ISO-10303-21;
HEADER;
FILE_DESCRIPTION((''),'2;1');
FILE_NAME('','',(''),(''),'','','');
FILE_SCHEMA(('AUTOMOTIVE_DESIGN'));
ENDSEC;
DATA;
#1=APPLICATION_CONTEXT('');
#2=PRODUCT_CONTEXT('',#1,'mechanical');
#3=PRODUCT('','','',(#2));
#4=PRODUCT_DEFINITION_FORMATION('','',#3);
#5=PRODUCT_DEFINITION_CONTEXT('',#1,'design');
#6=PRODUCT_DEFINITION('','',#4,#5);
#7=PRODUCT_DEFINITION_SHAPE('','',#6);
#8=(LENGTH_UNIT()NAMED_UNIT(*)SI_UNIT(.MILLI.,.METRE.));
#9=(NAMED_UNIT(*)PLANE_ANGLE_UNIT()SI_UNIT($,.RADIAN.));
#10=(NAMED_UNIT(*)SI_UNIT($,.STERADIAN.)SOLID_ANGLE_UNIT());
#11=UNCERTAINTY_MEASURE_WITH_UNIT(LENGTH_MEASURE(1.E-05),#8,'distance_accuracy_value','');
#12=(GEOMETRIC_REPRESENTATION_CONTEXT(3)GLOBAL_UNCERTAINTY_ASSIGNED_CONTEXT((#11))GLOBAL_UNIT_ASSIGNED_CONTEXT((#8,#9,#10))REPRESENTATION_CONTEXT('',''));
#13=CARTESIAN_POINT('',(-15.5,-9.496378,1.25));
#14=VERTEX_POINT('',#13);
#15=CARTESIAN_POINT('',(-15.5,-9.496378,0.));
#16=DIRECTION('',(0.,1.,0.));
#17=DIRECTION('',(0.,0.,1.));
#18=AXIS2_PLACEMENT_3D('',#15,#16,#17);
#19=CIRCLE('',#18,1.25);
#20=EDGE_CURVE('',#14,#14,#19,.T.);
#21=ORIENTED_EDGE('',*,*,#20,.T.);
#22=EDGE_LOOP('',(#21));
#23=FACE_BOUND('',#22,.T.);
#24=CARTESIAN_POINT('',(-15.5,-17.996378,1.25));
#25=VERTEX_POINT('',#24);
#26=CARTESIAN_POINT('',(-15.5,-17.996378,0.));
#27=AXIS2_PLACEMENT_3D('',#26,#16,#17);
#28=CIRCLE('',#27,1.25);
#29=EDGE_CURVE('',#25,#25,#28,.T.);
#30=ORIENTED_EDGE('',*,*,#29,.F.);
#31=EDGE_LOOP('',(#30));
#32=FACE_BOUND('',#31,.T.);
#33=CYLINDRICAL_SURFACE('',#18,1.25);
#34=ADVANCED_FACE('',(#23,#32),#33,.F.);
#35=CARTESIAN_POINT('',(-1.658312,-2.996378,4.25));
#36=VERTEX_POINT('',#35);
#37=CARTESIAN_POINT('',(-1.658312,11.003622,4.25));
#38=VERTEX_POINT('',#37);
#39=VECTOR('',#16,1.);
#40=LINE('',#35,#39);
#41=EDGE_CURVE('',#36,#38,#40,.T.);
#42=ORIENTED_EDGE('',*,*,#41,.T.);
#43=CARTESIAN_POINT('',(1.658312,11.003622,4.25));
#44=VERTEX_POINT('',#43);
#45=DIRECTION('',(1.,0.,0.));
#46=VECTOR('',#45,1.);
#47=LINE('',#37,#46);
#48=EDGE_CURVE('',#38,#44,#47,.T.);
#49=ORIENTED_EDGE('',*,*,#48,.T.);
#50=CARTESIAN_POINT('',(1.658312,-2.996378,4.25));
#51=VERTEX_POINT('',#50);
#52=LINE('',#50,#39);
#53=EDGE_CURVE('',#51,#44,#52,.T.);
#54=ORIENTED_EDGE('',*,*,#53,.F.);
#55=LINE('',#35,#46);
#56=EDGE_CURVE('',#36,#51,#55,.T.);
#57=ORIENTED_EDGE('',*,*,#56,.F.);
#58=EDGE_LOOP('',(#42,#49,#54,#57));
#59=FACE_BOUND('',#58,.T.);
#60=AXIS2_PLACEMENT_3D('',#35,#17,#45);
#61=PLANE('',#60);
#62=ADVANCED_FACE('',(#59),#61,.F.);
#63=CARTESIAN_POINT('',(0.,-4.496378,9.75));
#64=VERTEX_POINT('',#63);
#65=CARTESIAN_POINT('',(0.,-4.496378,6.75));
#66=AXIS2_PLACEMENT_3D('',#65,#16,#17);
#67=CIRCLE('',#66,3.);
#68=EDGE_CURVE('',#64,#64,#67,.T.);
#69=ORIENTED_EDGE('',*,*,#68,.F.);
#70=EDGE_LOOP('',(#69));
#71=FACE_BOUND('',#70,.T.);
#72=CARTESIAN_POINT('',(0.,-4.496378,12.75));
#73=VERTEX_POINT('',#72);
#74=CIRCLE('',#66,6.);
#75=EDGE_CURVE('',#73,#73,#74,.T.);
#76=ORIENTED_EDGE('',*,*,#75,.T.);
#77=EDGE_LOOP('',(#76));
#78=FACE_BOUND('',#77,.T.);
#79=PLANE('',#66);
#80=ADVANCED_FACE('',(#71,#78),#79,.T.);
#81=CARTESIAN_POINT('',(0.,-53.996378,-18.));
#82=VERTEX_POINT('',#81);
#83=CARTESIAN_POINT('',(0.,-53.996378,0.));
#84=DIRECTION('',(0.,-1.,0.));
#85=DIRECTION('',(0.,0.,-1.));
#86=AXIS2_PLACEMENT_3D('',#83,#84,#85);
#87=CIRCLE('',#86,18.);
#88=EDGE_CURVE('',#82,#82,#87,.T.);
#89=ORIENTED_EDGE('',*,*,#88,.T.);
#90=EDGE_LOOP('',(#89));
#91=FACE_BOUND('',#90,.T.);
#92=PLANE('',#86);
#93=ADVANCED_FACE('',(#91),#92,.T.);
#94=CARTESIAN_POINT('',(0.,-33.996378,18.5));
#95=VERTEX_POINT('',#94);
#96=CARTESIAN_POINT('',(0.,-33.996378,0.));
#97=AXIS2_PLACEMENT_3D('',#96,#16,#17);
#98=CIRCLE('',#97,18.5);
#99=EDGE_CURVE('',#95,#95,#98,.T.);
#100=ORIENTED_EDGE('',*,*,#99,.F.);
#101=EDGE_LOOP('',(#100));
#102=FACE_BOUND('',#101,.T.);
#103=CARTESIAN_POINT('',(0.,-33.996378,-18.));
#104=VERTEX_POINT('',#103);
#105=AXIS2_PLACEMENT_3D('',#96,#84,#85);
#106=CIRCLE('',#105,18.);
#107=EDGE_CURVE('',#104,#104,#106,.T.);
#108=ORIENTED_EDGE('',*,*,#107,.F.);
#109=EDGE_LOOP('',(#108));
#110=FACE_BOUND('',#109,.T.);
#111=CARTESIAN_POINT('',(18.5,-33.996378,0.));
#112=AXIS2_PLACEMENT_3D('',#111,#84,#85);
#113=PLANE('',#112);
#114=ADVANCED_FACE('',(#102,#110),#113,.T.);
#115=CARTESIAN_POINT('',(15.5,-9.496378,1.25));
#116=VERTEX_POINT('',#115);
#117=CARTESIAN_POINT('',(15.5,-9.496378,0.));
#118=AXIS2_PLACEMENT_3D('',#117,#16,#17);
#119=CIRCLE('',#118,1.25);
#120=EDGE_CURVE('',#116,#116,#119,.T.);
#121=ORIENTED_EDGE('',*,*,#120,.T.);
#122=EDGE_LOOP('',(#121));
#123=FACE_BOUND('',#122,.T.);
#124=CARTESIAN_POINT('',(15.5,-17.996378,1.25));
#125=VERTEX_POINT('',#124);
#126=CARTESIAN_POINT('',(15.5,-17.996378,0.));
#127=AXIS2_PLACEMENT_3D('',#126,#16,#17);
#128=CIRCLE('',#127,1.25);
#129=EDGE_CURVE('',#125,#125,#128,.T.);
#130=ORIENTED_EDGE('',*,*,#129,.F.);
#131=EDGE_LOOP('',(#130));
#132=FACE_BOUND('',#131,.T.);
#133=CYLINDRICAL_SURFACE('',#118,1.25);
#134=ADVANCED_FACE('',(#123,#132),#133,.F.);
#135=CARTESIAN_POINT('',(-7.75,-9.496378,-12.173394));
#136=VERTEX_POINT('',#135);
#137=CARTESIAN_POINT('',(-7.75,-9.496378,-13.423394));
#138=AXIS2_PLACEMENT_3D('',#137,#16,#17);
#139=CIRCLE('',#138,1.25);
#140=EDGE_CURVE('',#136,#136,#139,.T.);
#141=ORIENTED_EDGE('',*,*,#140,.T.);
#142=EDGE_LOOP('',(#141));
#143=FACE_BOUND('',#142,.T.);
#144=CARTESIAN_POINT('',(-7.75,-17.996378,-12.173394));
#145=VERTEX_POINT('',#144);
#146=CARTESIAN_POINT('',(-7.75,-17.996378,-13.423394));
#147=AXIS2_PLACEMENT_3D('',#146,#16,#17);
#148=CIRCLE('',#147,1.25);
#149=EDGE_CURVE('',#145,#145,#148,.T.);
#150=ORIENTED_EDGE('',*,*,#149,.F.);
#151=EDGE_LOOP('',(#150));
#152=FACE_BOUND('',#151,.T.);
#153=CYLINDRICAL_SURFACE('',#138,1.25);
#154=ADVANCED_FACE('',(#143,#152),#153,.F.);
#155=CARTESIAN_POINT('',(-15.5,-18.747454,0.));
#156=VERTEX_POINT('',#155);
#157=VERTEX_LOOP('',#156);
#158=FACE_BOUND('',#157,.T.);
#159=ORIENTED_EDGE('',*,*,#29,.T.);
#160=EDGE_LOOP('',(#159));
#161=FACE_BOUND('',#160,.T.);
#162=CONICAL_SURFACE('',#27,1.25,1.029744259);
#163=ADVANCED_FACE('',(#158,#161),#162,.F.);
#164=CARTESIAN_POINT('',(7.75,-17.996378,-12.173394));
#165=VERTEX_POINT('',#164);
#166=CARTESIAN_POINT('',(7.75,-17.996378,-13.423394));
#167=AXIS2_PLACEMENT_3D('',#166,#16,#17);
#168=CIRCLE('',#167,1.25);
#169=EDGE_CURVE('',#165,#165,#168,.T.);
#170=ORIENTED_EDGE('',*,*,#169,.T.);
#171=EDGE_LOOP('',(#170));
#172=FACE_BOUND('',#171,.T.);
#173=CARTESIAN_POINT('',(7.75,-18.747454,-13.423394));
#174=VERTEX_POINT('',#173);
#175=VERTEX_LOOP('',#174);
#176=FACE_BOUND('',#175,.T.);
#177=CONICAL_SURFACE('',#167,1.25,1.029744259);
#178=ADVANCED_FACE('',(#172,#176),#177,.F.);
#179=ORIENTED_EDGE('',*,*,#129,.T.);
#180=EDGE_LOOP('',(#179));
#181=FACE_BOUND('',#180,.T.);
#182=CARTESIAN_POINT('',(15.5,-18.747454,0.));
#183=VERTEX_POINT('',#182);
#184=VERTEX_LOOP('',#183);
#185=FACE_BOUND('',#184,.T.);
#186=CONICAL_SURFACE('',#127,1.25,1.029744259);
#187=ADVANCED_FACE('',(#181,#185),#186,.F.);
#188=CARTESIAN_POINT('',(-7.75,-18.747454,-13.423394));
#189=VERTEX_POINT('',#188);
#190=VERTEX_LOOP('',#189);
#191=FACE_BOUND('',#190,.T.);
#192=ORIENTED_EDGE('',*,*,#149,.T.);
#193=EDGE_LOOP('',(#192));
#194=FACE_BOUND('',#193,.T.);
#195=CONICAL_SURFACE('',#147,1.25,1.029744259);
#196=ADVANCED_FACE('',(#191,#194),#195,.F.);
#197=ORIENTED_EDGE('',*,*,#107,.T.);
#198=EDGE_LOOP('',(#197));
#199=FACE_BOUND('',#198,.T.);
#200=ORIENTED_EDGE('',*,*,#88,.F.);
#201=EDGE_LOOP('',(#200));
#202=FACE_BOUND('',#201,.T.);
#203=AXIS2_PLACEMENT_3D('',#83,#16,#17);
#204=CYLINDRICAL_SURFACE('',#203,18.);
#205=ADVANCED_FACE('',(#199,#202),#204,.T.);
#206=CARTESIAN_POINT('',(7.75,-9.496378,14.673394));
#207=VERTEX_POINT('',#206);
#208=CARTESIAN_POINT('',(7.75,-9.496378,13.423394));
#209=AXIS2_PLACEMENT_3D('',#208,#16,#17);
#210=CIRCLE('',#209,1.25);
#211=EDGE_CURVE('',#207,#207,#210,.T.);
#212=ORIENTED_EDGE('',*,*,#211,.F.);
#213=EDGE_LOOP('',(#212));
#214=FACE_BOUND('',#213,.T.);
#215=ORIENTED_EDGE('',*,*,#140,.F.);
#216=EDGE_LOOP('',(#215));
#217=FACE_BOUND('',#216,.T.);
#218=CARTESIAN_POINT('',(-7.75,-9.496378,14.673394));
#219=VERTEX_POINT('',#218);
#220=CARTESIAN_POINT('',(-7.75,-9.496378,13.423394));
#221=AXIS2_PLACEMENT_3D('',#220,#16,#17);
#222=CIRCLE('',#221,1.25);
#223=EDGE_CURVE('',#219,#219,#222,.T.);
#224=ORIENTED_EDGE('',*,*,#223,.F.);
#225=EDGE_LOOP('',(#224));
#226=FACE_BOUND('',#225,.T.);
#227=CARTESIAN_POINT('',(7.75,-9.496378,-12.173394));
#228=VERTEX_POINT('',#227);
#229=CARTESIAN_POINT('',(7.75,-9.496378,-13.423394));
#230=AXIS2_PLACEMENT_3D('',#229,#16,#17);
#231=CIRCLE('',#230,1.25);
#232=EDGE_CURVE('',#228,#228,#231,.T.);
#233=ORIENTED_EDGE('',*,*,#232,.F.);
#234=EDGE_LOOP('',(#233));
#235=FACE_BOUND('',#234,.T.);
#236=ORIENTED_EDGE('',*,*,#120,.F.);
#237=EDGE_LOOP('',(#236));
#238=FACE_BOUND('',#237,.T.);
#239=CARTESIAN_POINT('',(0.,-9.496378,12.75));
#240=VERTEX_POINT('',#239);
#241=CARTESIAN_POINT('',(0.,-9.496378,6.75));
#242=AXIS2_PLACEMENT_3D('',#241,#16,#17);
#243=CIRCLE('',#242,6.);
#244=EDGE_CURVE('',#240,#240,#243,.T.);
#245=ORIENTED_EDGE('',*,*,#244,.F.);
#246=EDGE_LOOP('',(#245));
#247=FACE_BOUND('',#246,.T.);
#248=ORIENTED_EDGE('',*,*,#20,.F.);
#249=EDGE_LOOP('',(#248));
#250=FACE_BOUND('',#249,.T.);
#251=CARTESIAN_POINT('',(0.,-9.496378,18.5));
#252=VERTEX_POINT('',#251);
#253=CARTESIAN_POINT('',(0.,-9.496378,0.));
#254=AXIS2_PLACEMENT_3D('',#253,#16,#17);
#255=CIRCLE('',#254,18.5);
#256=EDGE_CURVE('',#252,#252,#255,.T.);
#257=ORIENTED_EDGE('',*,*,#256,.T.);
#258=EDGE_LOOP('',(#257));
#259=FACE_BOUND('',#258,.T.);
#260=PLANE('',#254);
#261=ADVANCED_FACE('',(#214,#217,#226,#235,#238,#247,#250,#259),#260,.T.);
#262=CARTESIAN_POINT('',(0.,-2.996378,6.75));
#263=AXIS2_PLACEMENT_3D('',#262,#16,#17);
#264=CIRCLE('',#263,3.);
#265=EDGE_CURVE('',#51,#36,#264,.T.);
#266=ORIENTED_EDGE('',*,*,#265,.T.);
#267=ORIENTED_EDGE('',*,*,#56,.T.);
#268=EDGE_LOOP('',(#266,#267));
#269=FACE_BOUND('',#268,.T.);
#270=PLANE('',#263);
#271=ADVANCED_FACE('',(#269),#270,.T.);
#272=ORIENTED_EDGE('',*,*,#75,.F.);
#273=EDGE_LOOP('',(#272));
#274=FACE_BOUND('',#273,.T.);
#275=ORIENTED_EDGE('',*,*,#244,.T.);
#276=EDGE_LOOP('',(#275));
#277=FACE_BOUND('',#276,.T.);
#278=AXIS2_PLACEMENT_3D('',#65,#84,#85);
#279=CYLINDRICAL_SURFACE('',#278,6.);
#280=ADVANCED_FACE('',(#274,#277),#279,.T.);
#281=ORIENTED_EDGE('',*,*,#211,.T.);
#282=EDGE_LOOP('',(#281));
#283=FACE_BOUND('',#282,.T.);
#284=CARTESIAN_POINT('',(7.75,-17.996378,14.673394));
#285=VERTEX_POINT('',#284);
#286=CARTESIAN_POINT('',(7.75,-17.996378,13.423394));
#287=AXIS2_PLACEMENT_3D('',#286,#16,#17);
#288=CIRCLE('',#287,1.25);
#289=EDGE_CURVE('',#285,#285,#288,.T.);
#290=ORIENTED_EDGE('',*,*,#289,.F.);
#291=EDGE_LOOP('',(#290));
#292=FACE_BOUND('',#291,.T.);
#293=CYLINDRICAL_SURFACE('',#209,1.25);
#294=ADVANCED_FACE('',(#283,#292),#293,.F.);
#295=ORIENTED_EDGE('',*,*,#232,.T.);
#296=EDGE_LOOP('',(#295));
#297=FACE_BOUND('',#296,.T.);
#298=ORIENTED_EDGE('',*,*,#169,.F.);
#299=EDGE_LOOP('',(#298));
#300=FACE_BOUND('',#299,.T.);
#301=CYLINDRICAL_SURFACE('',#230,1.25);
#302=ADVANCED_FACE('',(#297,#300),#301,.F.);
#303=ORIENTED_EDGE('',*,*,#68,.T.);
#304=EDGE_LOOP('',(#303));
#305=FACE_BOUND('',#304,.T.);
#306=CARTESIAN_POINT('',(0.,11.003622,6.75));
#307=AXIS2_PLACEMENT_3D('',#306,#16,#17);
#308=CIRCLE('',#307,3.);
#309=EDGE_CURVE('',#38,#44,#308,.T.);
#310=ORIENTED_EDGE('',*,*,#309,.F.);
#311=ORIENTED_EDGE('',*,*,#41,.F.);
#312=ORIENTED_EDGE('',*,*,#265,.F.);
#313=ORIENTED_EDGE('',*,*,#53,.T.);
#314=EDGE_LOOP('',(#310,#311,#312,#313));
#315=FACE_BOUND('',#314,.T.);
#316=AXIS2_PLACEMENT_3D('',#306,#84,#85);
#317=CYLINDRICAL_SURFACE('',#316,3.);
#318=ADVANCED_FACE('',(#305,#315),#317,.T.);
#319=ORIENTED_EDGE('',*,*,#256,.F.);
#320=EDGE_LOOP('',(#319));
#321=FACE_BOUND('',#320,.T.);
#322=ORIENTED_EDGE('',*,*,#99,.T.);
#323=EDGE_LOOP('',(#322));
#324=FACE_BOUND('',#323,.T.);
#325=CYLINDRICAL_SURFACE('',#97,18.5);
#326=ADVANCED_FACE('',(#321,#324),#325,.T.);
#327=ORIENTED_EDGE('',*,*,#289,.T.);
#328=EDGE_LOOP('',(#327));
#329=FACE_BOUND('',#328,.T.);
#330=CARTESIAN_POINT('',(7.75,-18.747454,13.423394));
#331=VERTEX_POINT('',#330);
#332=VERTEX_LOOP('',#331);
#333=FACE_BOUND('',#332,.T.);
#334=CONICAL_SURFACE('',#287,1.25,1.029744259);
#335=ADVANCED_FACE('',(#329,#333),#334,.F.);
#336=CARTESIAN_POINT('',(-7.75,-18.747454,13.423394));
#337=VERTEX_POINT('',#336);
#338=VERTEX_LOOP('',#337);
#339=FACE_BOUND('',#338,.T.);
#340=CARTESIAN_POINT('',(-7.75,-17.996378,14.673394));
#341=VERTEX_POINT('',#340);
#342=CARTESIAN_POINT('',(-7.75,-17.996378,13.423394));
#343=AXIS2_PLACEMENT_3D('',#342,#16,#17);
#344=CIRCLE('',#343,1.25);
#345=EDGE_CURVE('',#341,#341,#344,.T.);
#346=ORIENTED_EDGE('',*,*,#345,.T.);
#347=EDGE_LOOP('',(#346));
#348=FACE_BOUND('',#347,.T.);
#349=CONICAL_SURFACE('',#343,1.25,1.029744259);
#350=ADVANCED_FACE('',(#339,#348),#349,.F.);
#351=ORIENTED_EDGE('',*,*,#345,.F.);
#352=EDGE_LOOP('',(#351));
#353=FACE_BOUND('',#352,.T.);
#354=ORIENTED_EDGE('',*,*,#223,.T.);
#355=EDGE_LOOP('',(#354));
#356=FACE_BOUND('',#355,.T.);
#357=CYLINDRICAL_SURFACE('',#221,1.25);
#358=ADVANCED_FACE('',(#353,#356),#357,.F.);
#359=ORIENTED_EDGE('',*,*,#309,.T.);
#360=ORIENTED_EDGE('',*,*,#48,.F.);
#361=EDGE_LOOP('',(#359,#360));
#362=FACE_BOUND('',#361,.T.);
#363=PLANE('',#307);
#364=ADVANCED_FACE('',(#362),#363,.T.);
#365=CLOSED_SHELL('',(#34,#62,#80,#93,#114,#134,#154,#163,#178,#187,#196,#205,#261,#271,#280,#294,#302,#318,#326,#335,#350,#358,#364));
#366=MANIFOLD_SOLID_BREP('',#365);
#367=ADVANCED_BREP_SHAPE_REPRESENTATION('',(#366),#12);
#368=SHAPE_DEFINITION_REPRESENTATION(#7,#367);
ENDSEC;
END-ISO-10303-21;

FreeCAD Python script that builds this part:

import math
import FreeCAD as App
import Part
import Sketcher
Q = App.Units.Quantity

doc = App.newDocument("Part")
body = doc.addObject("PartDesign::Body", "Body")

# Sketch on XY plane
sketch1 = body.newObject("Sketcher::SketchObject", "Sketch")
sketch1.AttachmentSupport = (doc.getObject("XY_Plane"), [""])
sketch1.MapMode = "FlatFace"
sketch1.addGeometry([
    Part.LineSegment(App.Vector(18, -9, 0), App.Vector(18, -34, 0)),
    Part.LineSegment(App.Vector(18, -34, 0), App.Vector(0, -34, 0)),
    Part.LineSegment(App.Vector(0, -34, 0), App.Vector(0, -9, 0)),
    Part.LineSegment(App.Vector(0, -9, 0), App.Vector(18, -9, 0)),
], False)
sketch1.addConstraint([
    Sketcher.Constraint("Coincident", 0, 2, 1, 1),
    Sketcher.Constraint("Coincident", 1, 2, 2, 1),
    Sketcher.Constraint("Coincident", 2, 2, 3, 1),
    Sketcher.Constraint("Coincident", 3, 2, 0, 1),
    Sketcher.Constraint("Vertical", 0),
    Sketcher.Constraint("Horizontal", 1),
    Sketcher.Constraint("Vertical", 2),
    Sketcher.Constraint("Horizontal", 3),
    Sketcher.Constraint("PointOnObject", 1, 2, -2),
    Sketcher.Constraint("DistanceX", 1, 2, 1, 1, Q("18.5 mm")),
    Sketcher.Constraint("DistanceY", 0, 2, 0, 1, Q("24.5 mm")),
    Sketcher.Constraint("DistanceY", 0, 2, -1, 1, Q("33.996378 mm")),
])
revolution = body.newObject("PartDesign::Revolution", "Revolution")
revolution.Profile = sketch1
revolution.ReferenceAxis = (sketch1, ["V_Axis"])
revolution.Angle = 360

# Sketch on XZ plane
sketch2 = body.newObject("Sketcher::SketchObject", "Sketch001")
sketch2.AttachmentSupport = (doc.getObject("XZ_Plane"), [""])
sketch2.MapMode = "FlatFace"
sketch2.AttachmentOffset = App.Placement(App.Vector(0, 0, 9.496378), App.Rotation())
sketch2.addGeometry(Part.Circle(App.Vector(0, 7, 0), App.Vector(0, 0, 1), 6), False)
sketch2.addConstraint([
    Sketcher.Constraint("PointOnObject", 0, 3, -2),
    Sketcher.Constraint("Diameter", 0, Q("12 mm")),
    Sketcher.Constraint("DistanceY", -1, 1, 0, 3, Q("6.75 mm")),
])
pad1 = body.newObject("PartDesign::Pad", "Pad")
pad1.Profile = sketch2
pad1.Length = 5
pad1.Reversed = True

# Sketch on XZ plane
sketch3 = body.newObject("Sketcher::SketchObject", "Sketch002")
sketch3.AttachmentSupport = (doc.getObject("XZ_Plane"), [""])
sketch3.MapMode = "FlatFace"
sketch3.AttachmentOffset = App.Placement(App.Vector(0, 0, 4.496378), App.Rotation())
sketch3.addGeometry(Part.Circle(App.Vector(0, 6.8, 0), App.Vector(0, 0, 1), 3), False)
sketch3.addConstraint([
    Sketcher.Constraint("PointOnObject", 0, 3, -2),
    Sketcher.Constraint("Diameter", 0, Q("6 mm")),
    Sketcher.Constraint("DistanceY", -1, 1, 0, 3, Q("6.75 mm")),
])
pad2 = body.newObject("PartDesign::Pad", "Pad001")
pad2.Profile = sketch3
pad2.Length = 15.5
pad2.Reversed = True

# Sketch on XZ plane
sketch4 = body.newObject("Sketcher::SketchObject", "Sketch003")
sketch4.AttachmentSupport = (doc.getObject("XZ_Plane"), [""])
sketch4.MapMode = "FlatFace"
sketch4.AttachmentOffset = App.Placement(App.Vector(0, 0, 2.996378), App.Rotation())
sketch4.addGeometry([
    Part.LineSegment(App.Vector(-1.7, 4.2, 0), App.Vector(1.7, 4.2, 0)),
    Part.ArcOfCircle(Part.Circle(App.Vector(0, 6.7, 0), App.Vector(0, 0, 1), 3), math.radians(-124), math.radians(-56)),
], False)
sketch4.addConstraint([
    Sketcher.Constraint("Coincident", 0, 1, 1, 1),
    Sketcher.Constraint("Coincident", 1, 2, 0, 2),
    Sketcher.Constraint("Horizontal", 0),
    Sketcher.Constraint("PointOnObject", 1, 3, -2),
    Sketcher.Constraint("Radius", 1, Q("3 mm")),
    Sketcher.Constraint("DistanceY", 0, 1, 1, 3, Q("2.5 mm")),
    Sketcher.Constraint("DistanceY", -1, 1, 1, 3, Q("6.75 mm")),
])
pocket1 = body.newObject("PartDesign::Pocket", "Pocket")
pocket1.Profile = sketch4
pocket1.Length = 14

# Sketch on XZ plane
sketch5 = body.newObject("Sketcher::SketchObject", "Sketch004")
sketch5.AttachmentSupport = (doc.getObject("XZ_Plane"), [""])
sketch5.MapMode = "FlatFace"
sketch5.AttachmentOffset = App.Placement(App.Vector(0, 0, 33.996378), App.Rotation())
sketch5.addGeometry(Part.Circle(App.Vector(0, 0, 0), App.Vector(0, 0, 1), 18), False)
sketch5.addConstraint([
    Sketcher.Constraint("Coincident", 0, 3, -1, 1),
    Sketcher.Constraint("Diameter", 0, Q("36 mm")),
])
pad3 = body.newObject("PartDesign::Pad", "Pad002")
pad3.Profile = sketch5
pad3.Length = 20

# Sketch on XZ plane
sketch6 = body.newObject("Sketcher::SketchObject", "Sketch005")
sketch6.AttachmentSupport = (doc.getObject("XZ_Plane"), [""])
sketch6.MapMode = "FlatFace"
sketch6.AttachmentOffset = App.Placement(App.Vector(0, 0, 9.496378), App.Rotation())
sketch6.addGeometry([
    Part.Circle(App.Vector(-7.8, -13.4, 0), App.Vector(0, 0, 1), 1.2),  # 0
    Part.Circle(App.Vector(7.8, -13.4, 0), App.Vector(0, 0, 1), 1.2),  # 1
    Part.Circle(App.Vector(15.5, 0, 0), App.Vector(0, 0, 1), 1.2),  # 2
    Part.Circle(App.Vector(7.8, 13.4, 0), App.Vector(0, 0, 1), 1.2),  # 3
    Part.Circle(App.Vector(-7.8, 13.4, 0), App.Vector(0, 0, 1), 1.2),  # 4
    Part.Circle(App.Vector(-15.5, 0, 0), App.Vector(0, 0, 1), 1.2),  # 5
], False)
sketch6.addConstraint([
    Sketcher.Constraint("Equal", 0, 1),
    Sketcher.Constraint("Equal", 1, 2),
    Sketcher.Constraint("Equal", 2, 3),
    Sketcher.Constraint("Equal", 3, 4),
    Sketcher.Constraint("Equal", 4, 5),
    Sketcher.Constraint("Symmetric", 0, 3, 3, 3, -1, 1),
    Sketcher.Constraint("Symmetric", 1, 3, 4, 3, -1, 1),
    Sketcher.Constraint("Symmetric", 2, 3, 5, 3, -1, 1),
    Sketcher.Constraint("Symmetric", 0, 3, 1, 3, -2),
    Sketcher.Constraint("PointOnObject", 2, 3, -1),
    Sketcher.Constraint("Diameter", 0, Q("2.5 mm")),
    Sketcher.Constraint("DistanceX", 5, 3, 2, 3, Q("31 mm")),
    Sketcher.Constraint("DistanceX", 0, 3, 1, 3, Q("15.5 mm")),
    Sketcher.Constraint("DistanceY", 0, 3, -1, 1, Q("13.423394 mm")),
])
doc.recompute()
hole = body.newObject("PartDesign::Hole", "Hole")
hole.Profile = sketch6
hole.ThreadType = "None"
hole.Diameter = 2.5
hole.DepthType = "Dimension"
hole.Depth = 8.5
hole.DrillPoint = "Angled"
hole.DrillPointAngle = 118
hole.Reversed = True

doc.recompute()
